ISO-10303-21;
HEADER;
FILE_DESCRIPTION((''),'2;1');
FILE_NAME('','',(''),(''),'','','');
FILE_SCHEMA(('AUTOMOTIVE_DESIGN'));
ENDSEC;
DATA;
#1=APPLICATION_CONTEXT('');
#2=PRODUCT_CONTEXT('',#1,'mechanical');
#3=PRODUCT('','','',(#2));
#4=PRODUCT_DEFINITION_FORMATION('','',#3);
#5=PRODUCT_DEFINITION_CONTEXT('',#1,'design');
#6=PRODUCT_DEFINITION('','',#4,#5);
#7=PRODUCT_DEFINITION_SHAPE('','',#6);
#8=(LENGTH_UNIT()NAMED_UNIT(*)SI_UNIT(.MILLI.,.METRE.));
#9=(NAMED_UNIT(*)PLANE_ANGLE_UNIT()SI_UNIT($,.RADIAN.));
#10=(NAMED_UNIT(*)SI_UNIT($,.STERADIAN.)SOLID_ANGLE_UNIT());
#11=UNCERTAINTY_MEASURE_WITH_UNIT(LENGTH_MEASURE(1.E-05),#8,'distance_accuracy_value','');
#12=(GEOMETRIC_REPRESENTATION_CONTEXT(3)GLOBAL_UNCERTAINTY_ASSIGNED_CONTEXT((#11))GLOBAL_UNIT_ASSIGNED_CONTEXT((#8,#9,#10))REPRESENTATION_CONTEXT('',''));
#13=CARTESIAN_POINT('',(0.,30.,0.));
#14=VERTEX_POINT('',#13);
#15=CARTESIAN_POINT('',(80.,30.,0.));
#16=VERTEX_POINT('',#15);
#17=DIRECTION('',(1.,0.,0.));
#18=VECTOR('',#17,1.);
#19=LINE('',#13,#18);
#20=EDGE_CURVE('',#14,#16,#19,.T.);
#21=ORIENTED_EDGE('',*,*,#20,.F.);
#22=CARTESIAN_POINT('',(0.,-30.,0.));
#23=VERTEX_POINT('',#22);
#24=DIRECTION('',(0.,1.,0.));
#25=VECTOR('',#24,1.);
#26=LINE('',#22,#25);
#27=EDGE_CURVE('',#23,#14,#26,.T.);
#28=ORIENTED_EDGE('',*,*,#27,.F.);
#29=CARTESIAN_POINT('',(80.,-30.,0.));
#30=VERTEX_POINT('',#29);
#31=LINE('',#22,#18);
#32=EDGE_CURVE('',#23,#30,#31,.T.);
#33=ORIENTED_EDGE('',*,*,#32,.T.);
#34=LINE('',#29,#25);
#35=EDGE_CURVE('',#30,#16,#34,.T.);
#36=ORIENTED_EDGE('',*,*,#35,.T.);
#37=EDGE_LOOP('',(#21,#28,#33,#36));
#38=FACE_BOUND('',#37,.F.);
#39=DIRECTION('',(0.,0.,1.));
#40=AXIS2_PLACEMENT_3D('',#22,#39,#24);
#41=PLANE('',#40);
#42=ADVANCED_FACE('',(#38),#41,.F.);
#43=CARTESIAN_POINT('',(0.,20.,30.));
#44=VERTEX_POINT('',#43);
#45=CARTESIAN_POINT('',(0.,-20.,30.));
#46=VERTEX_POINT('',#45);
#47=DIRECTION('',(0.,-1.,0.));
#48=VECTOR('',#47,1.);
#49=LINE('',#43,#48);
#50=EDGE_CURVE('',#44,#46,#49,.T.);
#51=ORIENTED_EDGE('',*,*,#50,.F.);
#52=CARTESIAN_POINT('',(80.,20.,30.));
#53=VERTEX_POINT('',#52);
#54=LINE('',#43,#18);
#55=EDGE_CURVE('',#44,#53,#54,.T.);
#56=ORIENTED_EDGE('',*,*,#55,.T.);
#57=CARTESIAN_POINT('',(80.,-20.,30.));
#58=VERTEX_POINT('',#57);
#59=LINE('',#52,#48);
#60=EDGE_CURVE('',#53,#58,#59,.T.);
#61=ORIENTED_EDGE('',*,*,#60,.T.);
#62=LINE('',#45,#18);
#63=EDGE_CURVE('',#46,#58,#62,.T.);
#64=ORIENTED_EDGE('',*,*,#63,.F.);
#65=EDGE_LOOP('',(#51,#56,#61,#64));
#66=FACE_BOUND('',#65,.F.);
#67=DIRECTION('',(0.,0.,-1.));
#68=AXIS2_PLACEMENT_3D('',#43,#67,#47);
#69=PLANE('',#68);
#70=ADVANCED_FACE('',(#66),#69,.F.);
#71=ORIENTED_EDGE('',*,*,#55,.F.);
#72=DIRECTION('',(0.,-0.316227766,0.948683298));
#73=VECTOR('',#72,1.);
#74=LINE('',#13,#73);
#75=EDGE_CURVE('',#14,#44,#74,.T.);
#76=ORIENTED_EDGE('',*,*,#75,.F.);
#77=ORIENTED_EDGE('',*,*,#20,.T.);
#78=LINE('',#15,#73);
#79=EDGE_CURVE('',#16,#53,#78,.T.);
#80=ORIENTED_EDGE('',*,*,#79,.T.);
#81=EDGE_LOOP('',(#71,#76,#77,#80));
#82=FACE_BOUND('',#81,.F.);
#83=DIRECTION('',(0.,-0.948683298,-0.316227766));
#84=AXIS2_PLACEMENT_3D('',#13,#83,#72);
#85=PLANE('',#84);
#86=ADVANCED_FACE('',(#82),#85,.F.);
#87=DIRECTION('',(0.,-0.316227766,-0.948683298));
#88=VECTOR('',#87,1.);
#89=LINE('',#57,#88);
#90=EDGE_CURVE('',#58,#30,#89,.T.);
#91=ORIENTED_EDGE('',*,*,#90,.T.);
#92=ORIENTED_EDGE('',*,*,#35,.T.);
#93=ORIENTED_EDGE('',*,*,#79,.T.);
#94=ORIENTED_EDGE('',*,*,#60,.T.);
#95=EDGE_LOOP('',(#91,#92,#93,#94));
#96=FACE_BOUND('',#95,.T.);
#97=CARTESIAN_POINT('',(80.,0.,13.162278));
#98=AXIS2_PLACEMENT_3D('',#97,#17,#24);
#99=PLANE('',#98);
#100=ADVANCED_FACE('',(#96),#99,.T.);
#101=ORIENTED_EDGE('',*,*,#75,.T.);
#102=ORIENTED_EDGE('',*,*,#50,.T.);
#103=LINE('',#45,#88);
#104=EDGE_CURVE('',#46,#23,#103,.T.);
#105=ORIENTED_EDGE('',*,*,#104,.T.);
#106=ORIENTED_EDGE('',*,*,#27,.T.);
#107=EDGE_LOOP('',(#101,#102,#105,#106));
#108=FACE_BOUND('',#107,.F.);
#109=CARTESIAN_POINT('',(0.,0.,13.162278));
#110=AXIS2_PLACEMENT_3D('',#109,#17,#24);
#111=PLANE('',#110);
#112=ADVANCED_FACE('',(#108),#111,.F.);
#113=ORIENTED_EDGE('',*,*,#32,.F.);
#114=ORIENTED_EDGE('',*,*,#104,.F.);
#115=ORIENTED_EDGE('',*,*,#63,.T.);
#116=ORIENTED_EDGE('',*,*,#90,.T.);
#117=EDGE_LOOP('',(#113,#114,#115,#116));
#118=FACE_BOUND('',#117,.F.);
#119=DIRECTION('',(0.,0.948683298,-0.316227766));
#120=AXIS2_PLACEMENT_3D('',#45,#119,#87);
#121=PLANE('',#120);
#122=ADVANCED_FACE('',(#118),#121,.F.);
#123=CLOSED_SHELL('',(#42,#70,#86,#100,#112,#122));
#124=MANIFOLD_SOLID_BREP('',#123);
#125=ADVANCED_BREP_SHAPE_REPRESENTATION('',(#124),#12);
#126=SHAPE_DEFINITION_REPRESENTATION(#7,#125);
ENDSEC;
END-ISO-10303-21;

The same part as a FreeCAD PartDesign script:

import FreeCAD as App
import Part
import Sketcher

V = App.Vector
Q = App.Units.Quantity


def add_polygon(sketch, points):
    """Adds a closed chain of lines whose ends are joined by coincident constraints."""
    first, n = sketch.GeometryCount, len(points)
    for a, b in zip(points, points[1:] + points[:1]):
        sketch.addGeometry(Part.LineSegment(App.Vector(*a, 0), App.Vector(*b, 0)), False)
    for i in range(n):
        sketch.addConstraint(Sketcher.Constraint("Coincident", first + i, 2, first + (i + 1) % n, 1))

doc = App.newDocument("Part")
body = doc.addObject("PartDesign::Body", "Body")

sketch1 = doc.addObject("Sketcher::SketchObject", "Sketch")
body.addObject(sketch1)
sketch1.AttachmentSupport = (doc.YZ_Plane, [""])
sketch1.MapMode = "FlatFace"
add_polygon(sketch1, [(-30, 0), (30, 0), (20, 30), (-20, 30)])
sketch1.addConstraint([
    Sketcher.Constraint("Horizontal", 0),
    Sketcher.Constraint("Horizontal", 2),
    Sketcher.Constraint("Symmetric", 0, 2, 3, 2, -1, 1),
    Sketcher.Constraint("Equal", 1, 3),
    Sketcher.Constraint("DistanceX", 0, 1, 0, 2, Q("60 mm")),
    Sketcher.Constraint("DistanceX", 2, 2, 2, 1, Q("40 mm")),
    Sketcher.Constraint("DistanceY", -1, 1, 1, 2, Q("30 mm")),
])
pad1 = doc.addObject("PartDesign::Pad", "Pad")
body.addObject(pad1)
pad1.Profile = sketch1
pad1.Length = 80

doc.recompute()
